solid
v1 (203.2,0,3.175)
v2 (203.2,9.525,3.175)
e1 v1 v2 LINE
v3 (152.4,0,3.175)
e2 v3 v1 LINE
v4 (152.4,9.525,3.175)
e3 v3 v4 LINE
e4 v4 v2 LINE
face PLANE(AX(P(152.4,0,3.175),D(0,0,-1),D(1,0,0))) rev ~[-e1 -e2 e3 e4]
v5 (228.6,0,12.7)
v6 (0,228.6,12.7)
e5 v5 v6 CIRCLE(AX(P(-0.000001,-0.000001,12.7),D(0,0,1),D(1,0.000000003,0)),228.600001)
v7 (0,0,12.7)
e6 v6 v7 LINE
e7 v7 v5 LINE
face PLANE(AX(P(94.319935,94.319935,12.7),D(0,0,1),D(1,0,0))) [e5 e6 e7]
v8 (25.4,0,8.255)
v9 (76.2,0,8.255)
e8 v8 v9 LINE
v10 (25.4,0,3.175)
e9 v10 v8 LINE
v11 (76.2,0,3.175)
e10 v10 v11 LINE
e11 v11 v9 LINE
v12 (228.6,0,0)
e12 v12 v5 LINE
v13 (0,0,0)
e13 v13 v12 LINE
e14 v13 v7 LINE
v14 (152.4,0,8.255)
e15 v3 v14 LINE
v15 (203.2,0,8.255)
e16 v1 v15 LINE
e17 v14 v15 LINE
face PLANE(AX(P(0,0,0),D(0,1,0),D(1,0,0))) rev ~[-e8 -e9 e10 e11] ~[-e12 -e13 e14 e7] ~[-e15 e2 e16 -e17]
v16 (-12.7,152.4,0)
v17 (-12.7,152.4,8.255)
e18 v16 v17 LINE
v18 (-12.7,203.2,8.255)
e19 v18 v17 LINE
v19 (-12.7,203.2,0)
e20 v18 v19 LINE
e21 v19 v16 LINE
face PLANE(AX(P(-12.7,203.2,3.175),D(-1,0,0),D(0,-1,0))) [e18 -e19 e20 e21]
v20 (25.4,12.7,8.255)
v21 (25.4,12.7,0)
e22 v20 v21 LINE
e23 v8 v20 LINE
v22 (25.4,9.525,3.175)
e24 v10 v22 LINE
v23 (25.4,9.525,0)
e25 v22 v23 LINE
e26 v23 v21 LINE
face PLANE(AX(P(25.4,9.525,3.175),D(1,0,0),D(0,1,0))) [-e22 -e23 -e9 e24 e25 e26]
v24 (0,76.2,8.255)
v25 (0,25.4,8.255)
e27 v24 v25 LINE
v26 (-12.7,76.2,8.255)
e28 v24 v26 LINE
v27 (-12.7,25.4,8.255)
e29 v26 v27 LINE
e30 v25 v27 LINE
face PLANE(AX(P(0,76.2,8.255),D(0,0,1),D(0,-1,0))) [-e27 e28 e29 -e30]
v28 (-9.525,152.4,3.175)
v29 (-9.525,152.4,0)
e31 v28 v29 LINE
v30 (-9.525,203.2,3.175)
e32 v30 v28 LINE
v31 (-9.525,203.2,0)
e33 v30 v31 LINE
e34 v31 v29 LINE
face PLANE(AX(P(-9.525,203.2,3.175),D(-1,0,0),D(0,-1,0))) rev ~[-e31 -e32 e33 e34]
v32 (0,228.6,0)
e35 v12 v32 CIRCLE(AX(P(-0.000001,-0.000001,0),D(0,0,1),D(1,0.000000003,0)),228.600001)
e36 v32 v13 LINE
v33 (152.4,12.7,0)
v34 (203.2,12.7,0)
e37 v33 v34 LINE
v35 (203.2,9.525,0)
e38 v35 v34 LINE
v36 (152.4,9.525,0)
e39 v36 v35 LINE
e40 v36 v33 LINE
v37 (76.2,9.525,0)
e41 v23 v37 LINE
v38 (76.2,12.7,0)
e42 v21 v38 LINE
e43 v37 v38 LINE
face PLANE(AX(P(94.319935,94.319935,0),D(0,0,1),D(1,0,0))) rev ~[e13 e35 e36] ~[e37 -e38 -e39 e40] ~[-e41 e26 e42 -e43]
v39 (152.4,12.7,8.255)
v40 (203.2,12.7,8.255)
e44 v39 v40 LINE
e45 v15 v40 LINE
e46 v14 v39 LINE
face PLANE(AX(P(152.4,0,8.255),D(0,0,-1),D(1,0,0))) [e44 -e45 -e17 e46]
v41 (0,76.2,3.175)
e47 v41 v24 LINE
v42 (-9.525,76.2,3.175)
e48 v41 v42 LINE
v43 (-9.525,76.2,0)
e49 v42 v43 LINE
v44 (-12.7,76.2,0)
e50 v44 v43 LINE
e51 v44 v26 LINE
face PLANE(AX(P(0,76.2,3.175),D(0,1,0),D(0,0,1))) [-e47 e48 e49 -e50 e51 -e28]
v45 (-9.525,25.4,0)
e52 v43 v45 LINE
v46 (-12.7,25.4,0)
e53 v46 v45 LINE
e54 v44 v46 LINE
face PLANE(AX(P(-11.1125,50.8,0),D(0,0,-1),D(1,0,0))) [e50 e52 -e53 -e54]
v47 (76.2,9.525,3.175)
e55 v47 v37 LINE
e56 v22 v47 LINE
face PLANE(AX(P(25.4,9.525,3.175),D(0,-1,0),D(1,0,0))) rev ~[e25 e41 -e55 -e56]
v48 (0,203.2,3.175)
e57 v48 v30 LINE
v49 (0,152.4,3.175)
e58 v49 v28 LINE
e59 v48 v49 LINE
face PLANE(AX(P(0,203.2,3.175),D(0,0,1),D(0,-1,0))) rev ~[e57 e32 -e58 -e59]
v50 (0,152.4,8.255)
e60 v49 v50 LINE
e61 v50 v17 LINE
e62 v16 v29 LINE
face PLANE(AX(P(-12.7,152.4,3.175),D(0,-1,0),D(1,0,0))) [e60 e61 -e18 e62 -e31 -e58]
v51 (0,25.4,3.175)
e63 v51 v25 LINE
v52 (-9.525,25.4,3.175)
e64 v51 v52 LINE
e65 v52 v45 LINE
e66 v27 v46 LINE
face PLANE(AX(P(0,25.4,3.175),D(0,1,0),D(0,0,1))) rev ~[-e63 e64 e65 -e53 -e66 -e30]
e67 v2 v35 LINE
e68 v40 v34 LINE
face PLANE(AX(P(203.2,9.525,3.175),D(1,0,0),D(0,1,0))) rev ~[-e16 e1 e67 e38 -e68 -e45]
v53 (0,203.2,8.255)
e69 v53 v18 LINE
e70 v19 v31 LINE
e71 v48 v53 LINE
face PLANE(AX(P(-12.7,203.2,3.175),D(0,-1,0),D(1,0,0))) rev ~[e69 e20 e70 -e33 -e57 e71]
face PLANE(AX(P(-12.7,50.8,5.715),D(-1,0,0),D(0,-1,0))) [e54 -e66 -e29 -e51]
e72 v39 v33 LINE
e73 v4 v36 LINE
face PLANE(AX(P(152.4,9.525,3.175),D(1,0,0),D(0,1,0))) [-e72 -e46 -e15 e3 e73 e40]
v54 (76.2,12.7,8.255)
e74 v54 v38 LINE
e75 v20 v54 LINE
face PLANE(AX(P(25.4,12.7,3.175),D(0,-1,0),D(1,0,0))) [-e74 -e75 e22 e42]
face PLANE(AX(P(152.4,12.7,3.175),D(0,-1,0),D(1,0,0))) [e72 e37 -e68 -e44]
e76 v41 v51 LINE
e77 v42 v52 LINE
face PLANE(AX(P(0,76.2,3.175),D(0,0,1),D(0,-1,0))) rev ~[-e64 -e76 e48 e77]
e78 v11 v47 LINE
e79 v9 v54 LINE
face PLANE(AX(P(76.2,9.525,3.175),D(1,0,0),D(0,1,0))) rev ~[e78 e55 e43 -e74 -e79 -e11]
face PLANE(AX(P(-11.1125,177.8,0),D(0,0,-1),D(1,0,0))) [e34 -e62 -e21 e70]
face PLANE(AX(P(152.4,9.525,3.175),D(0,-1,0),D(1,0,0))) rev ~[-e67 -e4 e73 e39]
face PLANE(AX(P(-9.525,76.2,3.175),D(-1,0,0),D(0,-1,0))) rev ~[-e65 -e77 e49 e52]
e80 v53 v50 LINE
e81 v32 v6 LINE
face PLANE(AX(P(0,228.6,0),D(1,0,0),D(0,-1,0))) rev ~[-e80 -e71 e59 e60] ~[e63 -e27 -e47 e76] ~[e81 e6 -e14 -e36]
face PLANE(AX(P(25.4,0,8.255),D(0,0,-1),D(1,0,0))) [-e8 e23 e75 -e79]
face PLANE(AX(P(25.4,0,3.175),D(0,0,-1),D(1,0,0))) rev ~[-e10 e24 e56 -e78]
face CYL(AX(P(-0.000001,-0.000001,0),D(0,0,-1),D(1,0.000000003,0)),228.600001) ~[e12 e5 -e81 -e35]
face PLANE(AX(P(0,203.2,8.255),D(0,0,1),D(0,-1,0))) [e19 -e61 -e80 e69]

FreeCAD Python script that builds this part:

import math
import FreeCAD as App
import Part
import Sketcher
from FreeCAD import Vector
Q = App.Units.Quantity

doc = App.newDocument("Part")
params = doc.addObject("Spreadsheet::Sheet", "Params")
for row, (alias, value) in enumerate([
    ("sketch1_radius", "9 in"),
    ("pad1_length", "0.5 in"),
    ("sketch2_width", "2 in"),
    ("sketch2_height", "0.2 in"),
    ("pocket1_length", "0.5 in"),
    ("sketch3_width", "2 in"),
    ("sketch3_height", "0.2 in"),
    ("pad2_length", "0.5 in"),
    ("sketch4_width", "2 in"),
    ("sketch4_height", "0.125 in"),
    ("sketch5_height", "2 in"),
    ("sketch5_width", "0.125 in"),
    ("pad3_length", "0.125 in"),
], start=1):
    params.set(f"A{row}", alias)
    params.set(f"B{row}", "=" + value)
    params.setAlias(f"B{row}", alias)

body = doc.addObject("PartDesign::Body", "Body")

sketch1 = doc.addObject("Sketcher::SketchObject", "Sketch")
body.addObject(sketch1)
sketch1.AttachmentSupport = (doc.XY_Plane, [""])
sketch1.MapMode = "FlatFace"
sketch1.addGeometry(Part.LineSegment(Vector(0, 228.6, 0), Vector(0, 0, 0)), False)
sketch1.addGeometry(Part.LineSegment(Vector(0, 0, 0), Vector(228.6, 0, 0)), False)
sketch1.addGeometry(Part.ArcOfCircle(Part.Circle(Vector(-0.000001, -0.000001, 0), Vector(0, 0, 1), 228.600001), math.radians(0), math.radians(90)), False)
sketch1.addConstraint(Sketcher.Constraint("Coincident", 0, 2, 1, 1))
sketch1.addConstraint(Sketcher.Constraint("Coincident", 1, 2, 2, 1))
sketch1.addConstraint(Sketcher.Constraint("Coincident", 2, 2, 0, 1))
sketch1.addConstraint(Sketcher.Constraint("Vertical", 0))
sketch1.addConstraint(Sketcher.Constraint("Horizontal", 1))
sketch1.addConstraint(Sketcher.Constraint("Coincident", 2, 3, -1, 1))
sketch1.addConstraint(Sketcher.Constraint("Coincident", 0, 2, -1, 1))
sketch1.addConstraint(Sketcher.Constraint("Radius", 2, Q("9 in")))
sketch1.setExpression("Constraints[7]", "Params.sketch1_radius")
pad1 = doc.addObject("PartDesign::Pad", "Pad")
body.addObject(pad1)
pad1.Profile = sketch1
pad1.setExpression("Length", "Params.pad1_length")

sketch2 = doc.addObject("Sketcher::SketchObject", "Sketch001")
body.addObject(sketch2)
sketch2.AttachmentSupport = (doc.XZ_Plane, [""])
sketch2.MapMode = "FlatFace"
sketch2.addGeometry(Part.LineSegment(Vector(25.4, 8.255, 0), Vector(25.4, 3.175, 0)), False)
sketch2.addGeometry(Part.LineSegment(Vector(25.4, 3.175, 0), Vector(76.2, 3.175, 0)), False)
sketch2.addGeometry(Part.LineSegment(Vector(76.2, 3.175, 0), Vector(76.2, 8.255, 0)), False)
sketch2.addGeometry(Part.LineSegment(Vector(76.2, 8.255, 0), Vector(25.4, 8.255, 0)), False)
sketch2.addGeometry(Part.LineSegment(Vector(152.4, 8.255, 0), Vector(152.4, 3.175, 0)), False)
sketch2.addGeometry(Part.LineSegment(Vector(152.4, 3.175, 0), Vector(203.2, 3.175, 0)), False)
sketch2.addGeometry(Part.LineSegment(Vector(203.2, 3.175, 0), Vector(203.2, 8.255, 0)), False)
sketch2.addGeometry(Part.LineSegment(Vector(203.2, 8.255, 0), Vector(152.4, 8.255, 0)), False)
sketch2.addConstraint(Sketcher.Constraint("Coincident", 0, 2, 1, 1))
sketch2.addConstraint(Sketcher.Constraint("Coincident", 1, 2, 2, 1))
sketch2.addConstraint(Sketcher.Constraint("Coincident", 2, 2, 3, 1))
sketch2.addConstraint(Sketcher.Constraint("Coincident", 3, 2, 0, 1))
sketch2.addConstraint(Sketcher.Constraint("Coincident", 4, 2, 5, 1))
sketch2.addConstraint(Sketcher.Constraint("Coincident", 5, 2, 6, 1))
sketch2.addConstraint(Sketcher.Constraint("Coincident", 6, 2, 7, 1))
sketch2.addConstraint(Sketcher.Constraint("Coincident", 7, 2, 4, 1))
sketch2.addConstraint(Sketcher.Constraint("Vertical", 0))
sketch2.addConstraint(Sketcher.Constraint("Horizontal", 1))
sketch2.addConstraint(Sketcher.Constraint("Vertical", 2))
sketch2.addConstraint(Sketcher.Constraint("Horizontal", 3))
sketch2.addConstraint(Sketcher.Constraint("Vertical", 4))
sketch2.addConstraint(Sketcher.Constraint("Horizontal", 5))
sketch2.addConstraint(Sketcher.Constraint("Vertical", 6))
sketch2.addConstraint(Sketcher.Constraint("Horizontal", 7))
sketch2.addConstraint(Sketcher.Constraint("Horizontal", 1, 2, 4, 2))
sketch2.addConstraint(Sketcher.Constraint("Horizontal", 3, 2, 6, 2))
sketch2.addConstraint(Sketcher.Constraint("Equal", 3, 5))
sketch2.addConstraint(Sketcher.Constraint("DistanceX", 1, 1, 1, 2, Q("2 in")))
sketch2.addConstraint(Sketcher.Constraint("DistanceY", 0, 2, 0, 1, Q("0.2 in")))
sketch2.addConstraint(Sketcher.Constraint("DistanceX", -1, 1, 0, 2, Q("1 in")))
sketch2.addConstraint(Sketcher.Constraint("DistanceX", -1, 1, 4, 2, Q("6 in")))
sketch2.addConstraint(Sketcher.Constraint("DistanceY", -1, 1, 0, 2, Q("0.125 in")))
sketch2.setExpression("Constraints[19]", "Params.sketch2_width")
sketch2.setExpression("Constraints[20]", "Params.sketch2_height")
pocket1 = doc.addObject("PartDesign::Pocket", "Pocket")
body.addObject(pocket1)
pocket1.Profile = sketch2
pocket1.setExpression("Length", "Params.pocket1_length")

sketch3 = doc.addObject("Sketcher::SketchObject", "Sketch002")
body.addObject(sketch3)
sketch3.AttachmentSupport = (doc.YZ_Plane, [""])
sketch3.MapMode = "FlatFace"
sketch3.addGeometry(Part.LineSegment(Vector(76.2, 8.255, 0), Vector(76.2, 3.175, 0)), False)
sketch3.addGeometry(Part.LineSegment(Vector(76.2, 3.175, 0), Vector(25.4, 3.175, 0)), False)
sketch3.addGeometry(Part.LineSegment(Vector(25.4, 3.175, 0), Vector(25.4, 8.255, 0)), False)
sketch3.addGeometry(Part.LineSegment(Vector(25.4, 8.255, 0), Vector(76.2, 8.255, 0)), False)
sketch3.addGeometry(Part.LineSegment(Vector(203.2, 8.255, 0), Vector(203.2, 3.175, 0)), False)
sketch3.addGeometry(Part.LineSegment(Vector(203.2, 3.175, 0), Vector(152.4, 3.175, 0)), False)
sketch3.addGeometry(Part.LineSegment(Vector(152.4, 3.175, 0), Vector(152.4, 8.255, 0)), False)
sketch3.addGeometry(Part.LineSegment(Vector(152.4, 8.255, 0), Vector(203.2, 8.255, 0)), False)
sketch3.addConstraint(Sketcher.Constraint("Coincident", 0, 2, 1, 1))
sketch3.addConstraint(Sketcher.Constraint("Coincident", 1, 2, 2, 1))
sketch3.addConstraint(Sketcher.Constraint("Coincident", 2, 2, 3, 1))
sketch3.addConstraint(Sketcher.Constraint("Coincident", 3, 2, 0, 1))
sketch3.addConstraint(Sketcher.Constraint("Coincident", 4, 2, 5, 1))
sketch3.addConstraint(Sketcher.Constraint("Coincident", 5, 2, 6, 1))
sketch3.addConstraint(Sketcher.Constraint("Coincident", 6, 2, 7, 1))
sketch3.addConstraint(Sketcher.Constraint("Coincident", 7, 2, 4, 1))
sketch3.addConstraint(Sketcher.Constraint("Vertical", 0))
sketch3.addConstraint(Sketcher.Constraint("Horizontal", 1))
sketch3.addConstraint(Sketcher.Constraint("Vertical", 2))
sketch3.addConstraint(Sketcher.Constraint("Horizontal", 3))
sketch3.addConstraint(Sketcher.Constraint("Vertical", 4))
sketch3.addConstraint(Sketcher.Constraint("Horizontal", 5))
sketch3.addConstraint(Sketcher.Constraint("Vertical", 6))
sketch3.addConstraint(Sketcher.Constraint("Horizontal", 7))
sketch3.addConstraint(Sketcher.Constraint("Horizontal", 1, 2, 4, 2))
sketch3.addConstraint(Sketcher.Constraint("Horizontal", 3, 2, 6, 2))
sketch3.addConstraint(Sketcher.Constraint("Equal", 3, 5))
sketch3.addConstraint(Sketcher.Constraint("DistanceX", 1, 2, 1, 1, Q("2 in")))
sketch3.addConstraint(Sketcher.Constraint("DistanceY", 0, 2, 0, 1, Q("0.2 in")))
sketch3.addConstraint(Sketcher.Constraint("DistanceX", -1, 1, 0, 2, Q("3 in")))
sketch3.addConstraint(Sketcher.Constraint("DistanceX", -1, 1, 4, 2, Q("8 in")))
sketch3.addConstraint(Sketcher.Constraint("DistanceY", -1, 1, 0, 2, Q("0.125 in")))
sketch3.setExpression("Constraints[19]", "Params.sketch3_width")
sketch3.setExpression("Constraints[20]", "Params.sketch3_height")
pad2 = doc.addObject("PartDesign::Pad", "Pad001")
body.addObject(pad2)
pad2.Profile = sketch3
pad2.setExpression("Length", "Params.pad2_length")
pad2.Reversed = True

sketch4 = doc.addObject("Sketcher::SketchObject", "Sketch003")
body.addObject(sketch4)
sketch4.AttachmentSupport = (doc.XY_Plane, [""])
sketch4.MapMode = "FlatFace"
sketch4.AttachmentOffset = App.Placement(Vector(0, 0, 0.125 * 25.4), App.Rotation())
sketch4.addGeometry(Part.LineSegment(Vector(25.4, 12.7, 0), Vector(25.4, 9.525, 0)), False)
sketch4.addGeometry(Part.LineSegment(Vector(25.4, 9.525, 0), Vector(76.2, 9.525, 0)), False)
sketch4.addGeometry(Part.LineSegment(Vector(76.2, 9.525, 0), Vector(76.2, 12.7, 0)), False)
sketch4.addGeometry(Part.LineSegment(Vector(76.2, 12.7, 0), Vector(25.4, 12.7, 0)), False)
sketch4.addGeometry(Part.LineSegment(Vector(152.4, 12.7, 0), Vector(152.4, 9.525, 0)), False)
sketch4.addGeometry(Part.LineSegment(Vector(152.4, 9.525, 0), Vector(203.2, 9.525, 0)), False)
sketch4.addGeometry(Part.LineSegment(Vector(203.2, 9.525, 0), Vector(203.2, 12.7, 0)), False)
sketch4.addGeometry(Part.LineSegment(Vector(203.2, 12.7, 0), Vector(152.4, 12.7, 0)), False)
sketch4.addConstraint(Sketcher.Constraint("Coincident", 0, 2, 1, 1))
sketch4.addConstraint(Sketcher.Constraint("Coincident", 1, 2, 2, 1))
sketch4.addConstraint(Sketcher.Constraint("Coincident", 2, 2, 3, 1))
sketch4.addConstraint(Sketcher.Constraint("Coincident", 3, 2, 0, 1))
sketch4.addConstraint(Sketcher.Constraint("Coincident", 4, 2, 5, 1))
sketch4.addConstraint(Sketcher.Constraint("Coincident", 5, 2, 6, 1))
sketch4.addConstraint(Sketcher.Constraint("Coincident", 6, 2, 7, 1))
sketch4.addConstraint(Sketcher.Constraint("Coincident", 7, 2, 4, 1))
sketch4.addConstraint(Sketcher.Constraint("Vertical", 0))
sketch4.addConstraint(Sketcher.Constraint("Horizontal", 1))
sketch4.addConstraint(Sketcher.Constraint("Vertical", 2))
sketch4.addConstraint(Sketcher.Constraint("Horizontal", 3))
sketch4.addConstraint(Sketcher.Constraint("Vertical", 4))
sketch4.addConstraint(Sketcher.Constraint("Horizontal", 5))
sketch4.addConstraint(Sketcher.Constraint("Vertical", 6))
sketch4.addConstraint(Sketcher.Constraint("Horizontal", 7))
sketch4.addConstraint(Sketcher.Constraint("Horizontal", 1, 2, 4, 2))
sketch4.addConstraint(Sketcher.Constraint("Horizontal", 3, 2, 6, 2))
sketch4.addConstraint(Sketcher.Constraint("Equal", 3, 5))
sketch4.addConstraint(Sketcher.Constraint("DistanceX", 1, 1, 1, 2, Q("2 in")))
sketch4.addConstraint(Sketcher.Constraint("DistanceX", -1, 1, 0, 2, Q("1 in")))
sketch4.addConstraint(Sketcher.Constraint("DistanceX", -1, 1, 4, 2, Q("6 in")))
sketch4.addConstraint(Sketcher.Constraint("DistanceY", -1, 1, 2, 2, Q("0.5 in")))
sketch4.addConstraint(Sketcher.Constraint("DistanceY", 0, 2, 0, 1, Q("0.125 in")))
sketch4.setExpression("Constraints[19]", "Params.sketch4_width")
sketch4.setExpression("Constraints[23]", "Params.sketch4_height")
pocket2 = doc.addObject("PartDesign::Pocket", "Pocket001")
body.addObject(pocket2)
pocket2.Profile = sketch4
pocket2.Type = "ThroughAll"

sketch5 = doc.addObject("Sketcher::SketchObject", "Sketch004")
body.addObject(sketch5)
sketch5.AttachmentSupport = (doc.XY_Plane, [""])
sketch5.MapMode = "FlatFace"
sketch5.AttachmentOffset = App.Placement(Vector(0, 0, 0.125 * 25.4), App.Rotation())
sketch5.addGeometry(Part.LineSegment(Vector(-12.7, 152.4, 0), Vector(-12.7, 203.2, 0)), False)
sketch5.addGeometry(Part.LineSegment(Vector(-12.7, 203.2, 0), Vector(-9.525, 203.2, 0)), False)
sketch5.addGeometry(Part.LineSegment(Vector(-9.525, 203.2, 0), Vector(-9.525, 152.4, 0)), False)
sketch5.addGeometry(Part.LineSegment(Vector(-9.525, 152.4, 0), Vector(-12.7, 152.4, 0)), False)
sketch5.addGeometry(Part.LineSegment(Vector(-12.7, 25.4, 0), Vector(-12.7, 76.2, 0)), False)
sketch5.addGeometry(Part.LineSegment(Vector(-12.7, 76.2, 0), Vector(-9.525, 76.2, 0)), False)
sketch5.addGeometry(Part.LineSegment(Vector(-9.525, 76.2, 0), Vector(-9.525, 25.4, 0)), False)
sketch5.addGeometry(Part.LineSegment(Vector(-9.525, 25.4, 0), Vector(-12.7, 25.4, 0)), False)
sketch5.addConstraint(Sketcher.Constraint("Coincident", 0, 2, 1, 1))
sketch5.addConstraint(Sketcher.Constraint("Coincident", 1, 2, 2, 1))
sketch5.addConstraint(Sketcher.Constraint("Coincident", 2, 2, 3, 1))
sketch5.addConstraint(Sketcher.Constraint("Coincident", 3, 2, 0, 1))
sketch5.addConstraint(Sketcher.Constraint("Coincident", 4, 2, 5, 1))
sketch5.addConstraint(Sketcher.Constraint("Coincident", 5, 2, 6, 1))
sketch5.addConstraint(Sketcher.Constraint("Coincident", 6, 2, 7, 1))
sketch5.addConstraint(Sketcher.Constraint("Coincident", 7, 2, 4, 1))
sketch5.addConstraint(Sketcher.Constraint("Vertical", 0))
sketch5.addConstraint(Sketcher.Constraint("Horizontal", 1))
sketch5.addConstraint(Sketcher.Constraint("Vertical", 2))
sketch5.addConstraint(Sketcher.Constraint("Horizontal", 3))
sketch5.addConstraint(Sketcher.Constraint("Vertical", 4))
sketch5.addConstraint(Sketcher.Constraint("Horizontal", 5))
sketch5.addConstraint(Sketcher.Constraint("Vertical", 6))
sketch5.addConstraint(Sketcher.Constraint("Horizontal", 7))
sketch5.addConstraint(Sketcher.Constraint("Vertical", 3, 2, 4, 2))
sketch5.addConstraint(Sketcher.Constraint("Vertical", 2, 2, 5, 2))
sketch5.addConstraint(Sketcher.Constraint("Equal", 2, 4))
sketch5.addConstraint(Sketcher.Constraint("DistanceY", 0, 1, 0, 2, Q("2 in")))
sketch5.addConstraint(Sketcher.Constraint("DistanceY", -1, 1, 0, 2, Q("8 in")))
sketch5.addConstraint(Sketcher.Constraint("DistanceY", -1, 1, 4, 2, Q("3 in")))
sketch5.addConstraint(Sketcher.Constraint("DistanceX", 0, 2, -1, 1, Q("0.5 in")))
sketch5.addConstraint(Sketcher.Constraint("DistanceX", 1, 1, 1, 2, Q("0.125 in")))
sketch5.setExpression("Constraints[19]", "Params.sketch5_height")
sketch5.setExpression("Constraints[23]", "Params.sketch5_width")
pad3 = doc.addObject("PartDesign::Pad", "Pad002")
body.addObject(pad3)
pad3.Profile = sketch5
pad3.setExpression("Length", "Params.pad3_length")
pad3.Reversed = True

doc.recompute()
